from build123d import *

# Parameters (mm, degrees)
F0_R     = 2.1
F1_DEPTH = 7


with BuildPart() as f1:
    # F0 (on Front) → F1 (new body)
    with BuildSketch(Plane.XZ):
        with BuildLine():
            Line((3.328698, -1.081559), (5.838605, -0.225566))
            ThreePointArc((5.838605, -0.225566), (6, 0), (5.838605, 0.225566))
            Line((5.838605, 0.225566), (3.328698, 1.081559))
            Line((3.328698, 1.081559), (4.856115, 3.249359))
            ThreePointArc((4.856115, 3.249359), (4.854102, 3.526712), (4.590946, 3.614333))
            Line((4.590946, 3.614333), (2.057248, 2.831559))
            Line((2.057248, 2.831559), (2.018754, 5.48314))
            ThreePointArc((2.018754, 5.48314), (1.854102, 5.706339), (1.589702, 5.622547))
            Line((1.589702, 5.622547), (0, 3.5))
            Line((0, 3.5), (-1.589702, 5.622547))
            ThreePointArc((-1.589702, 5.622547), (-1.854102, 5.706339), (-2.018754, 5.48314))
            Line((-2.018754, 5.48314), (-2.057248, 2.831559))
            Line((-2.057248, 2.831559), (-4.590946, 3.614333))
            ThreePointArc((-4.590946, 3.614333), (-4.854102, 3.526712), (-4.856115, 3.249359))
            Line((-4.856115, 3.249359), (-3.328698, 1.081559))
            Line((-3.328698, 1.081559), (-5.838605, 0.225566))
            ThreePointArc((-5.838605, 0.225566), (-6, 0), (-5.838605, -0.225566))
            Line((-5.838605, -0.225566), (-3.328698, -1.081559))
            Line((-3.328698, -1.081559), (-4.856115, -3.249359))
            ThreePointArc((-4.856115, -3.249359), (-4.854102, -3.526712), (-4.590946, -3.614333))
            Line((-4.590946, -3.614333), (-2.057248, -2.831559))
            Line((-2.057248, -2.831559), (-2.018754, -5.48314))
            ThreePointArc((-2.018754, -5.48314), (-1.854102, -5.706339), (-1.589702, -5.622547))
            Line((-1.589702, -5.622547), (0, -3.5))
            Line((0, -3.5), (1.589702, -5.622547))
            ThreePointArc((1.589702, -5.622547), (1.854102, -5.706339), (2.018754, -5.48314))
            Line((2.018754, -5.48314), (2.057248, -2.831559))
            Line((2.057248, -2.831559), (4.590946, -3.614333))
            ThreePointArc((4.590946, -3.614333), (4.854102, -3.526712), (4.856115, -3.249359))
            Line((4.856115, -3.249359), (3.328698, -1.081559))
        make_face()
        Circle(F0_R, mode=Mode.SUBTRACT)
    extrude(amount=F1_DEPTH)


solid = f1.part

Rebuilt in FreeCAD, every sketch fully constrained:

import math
import FreeCAD as App
import Part
import Sketcher
from FreeCAD import Vector

doc = App.newDocument("Part")
body = doc.addObject("PartDesign::Body", "Body")

# Sketch on XZ plane
sketch1 = doc.addObject("Sketcher::SketchObject", "Sketch")
body.addObject(sketch1)
sketch1.AttachmentSupport = (doc.XZ_Plane, [""])
sketch1.MapMode = "FlatFace"
sketch1.addGeometry(Part.LineSegment(Vector(3.33, -1.08, 0), Vector(5.84, -0.23, 0)), False)
sketch1.addGeometry(Part.ArcOfCircle(Part.Circle(Vector(5.76, 0, 0), Vector(0, 0, 1), 0.24), math.radians(-71), math.radians(71)), False)
sketch1.addGeometry(Part.LineSegment(Vector(5.84, 0.23, 0), Vector(3.33, 1.08, 0)), False)
sketch1.addGeometry(Part.LineSegment(Vector(3.33, 1.08, 0), Vector(4.86, 3.25, 0)), False)
sketch1.addGeometry(Part.ArcOfCircle(Part.Circle(Vector(4.66, 3.39, 0), Vector(0, 0, 1), 0.24), math.radians(-35), math.radians(107)), False)
sketch1.addGeometry(Part.LineSegment(Vector(4.59, 3.61, 0), Vector(2.06, 2.83, 0)), False)
sketch1.addGeometry(Part.LineSegment(Vector(2.06, 2.83, 0), Vector(2.02, 5.48, 0)), False)
sketch1.addGeometry(Part.ArcOfCircle(Part.Circle(Vector(1.78, 5.48, 0), Vector(0, 0, 1), 0.24), math.radians(1), math.radians(143)), False)
sketch1.addGeometry(Part.LineSegment(Vector(1.59, 5.62, 0), Vector(0, 3.5, 0)), False)
sketch1.addGeometry(Part.LineSegment(Vector(0, 3.5, 0), Vector(-1.59, 5.62, 0)), False)
sketch1.addGeometry(Part.ArcOfCircle(Part.Circle(Vector(-1.78, 5.48, 0), Vector(0, 0, 1), 0.24), math.radians(37), math.radians(179)), False)
sketch1.addGeometry(Part.LineSegment(Vector(-2.02, 5.48, 0), Vector(-2.06, 2.83, 0)), False)
sketch1.addGeometry(Part.LineSegment(Vector(-2.06, 2.83, 0), Vector(-4.59, 3.61, 0)), False)
sketch1.addGeometry(Part.ArcOfCircle(Part.Circle(Vector(-4.66, 3.39, 0), Vector(0, 0, 1), 0.24), math.radians(73), math.radians(215)), False)
sketch1.addGeometry(Part.LineSegment(Vector(-4.86, 3.25, 0), Vector(-3.33, 1.08, 0)), False)
sketch1.addGeometry(Part.LineSegment(Vector(-3.33, 1.08, 0), Vector(-5.84, 0.23, 0)), False)
sketch1.addGeometry(Part.ArcOfCircle(Part.Circle(Vector(-5.76, 0, 0), Vector(0, 0, 1), 0.24), math.radians(109), math.radians(251)), False)
sketch1.addGeometry(Part.LineSegment(Vector(-5.84, -0.23, 0), Vector(-3.33, -1.08, 0)), False)
sketch1.addGeometry(Part.LineSegment(Vector(-3.33, -1.08, 0), Vector(-4.86, -3.25, 0)), False)
sketch1.addGeometry(Part.ArcOfCircle(Part.Circle(Vector(-4.66, -3.39, 0), Vector(0, 0, 1), 0.24), math.radians(145), math.radians(287)), False)
sketch1.addGeometry(Part.LineSegment(Vector(-4.59, -3.61, 0), Vector(-2.06, -2.83, 0)), False)
sketch1.addGeometry(Part.LineSegment(Vector(-2.06, -2.83, 0), Vector(-2.02, -5.48, 0)), False)
sketch1.addGeometry(Part.ArcOfCircle(Part.Circle(Vector(-1.78, -5.48, 0), Vector(0, 0, 1), 0.24), math.radians(-179), math.radians(-37)), False)
sketch1.addGeometry(Part.LineSegment(Vector(-1.59, -5.62, 0), Vector(0, -3.5, 0)), False)
sketch1.addGeometry(Part.LineSegment(Vector(0, -3.5, 0), Vector(1.59, -5.62, 0)), False)
sketch1.addGeometry(Part.ArcOfCircle(Part.Circle(Vector(1.78, -5.48, 0), Vector(0, 0, 1), 0.24), math.radians(-143), math.radians(-1)), False)
sketch1.addGeometry(Part.LineSegment(Vector(2.02, -5.48, 0), Vector(2.06, -2.83, 0)), False)
sketch1.addGeometry(Part.LineSegment(Vector(2.06, -2.83, 0), Vector(4.59, -3.61, 0)), False)
sketch1.addGeometry(Part.ArcOfCircle(Part.Circle(Vector(4.66, -3.39, 0), Vector(0, 0, 1), 0.24), math.radians(-107), math.radians(35)), False)
sketch1.addGeometry(Part.LineSegment(Vector(4.86, -3.25, 0), Vector(3.33, -1.08, 0)), False)
sketch1.addGeometry(Part.Circle(Vector(0, 0, 0), Vector(0, 0, 1), 2.1), False)
sketch1.addConstraint(Sketcher.Constraint("Tangent", 0, 2, 1, 1))
sketch1.addConstraint(Sketcher.Constraint("Tangent", 1, 2, 2, 1))
sketch1.addConstraint(Sketcher.Constraint("Coincident", 2, 2, 3, 1))
sketch1.addConstraint(Sketcher.Constraint("Tangent", 3, 2, 4, 1))
sketch1.addConstraint(Sketcher.Constraint("Tangent", 4, 2, 5, 1))
sketch1.addConstraint(Sketcher.Constraint("Coincident", 5, 2, 6, 1))
sketch1.addConstraint(Sketcher.Constraint("Tangent", 6, 2, 7, 1))
sketch1.addConstraint(Sketcher.Constraint("Tangent", 7, 2, 8, 1))
sketch1.addConstraint(Sketcher.Constraint("Coincident", 8, 2, 9, 1))
sketch1.addConstraint(Sketcher.Constraint("Tangent", 9, 2, 10, 1))
sketch1.addConstraint(Sketcher.Constraint("Tangent", 10, 2, 11, 1))
sketch1.addConstraint(Sketcher.Constraint("Coincident", 11, 2, 12, 1))
sketch1.addConstraint(Sketcher.Constraint("Tangent", 12, 2, 13, 1))
sketch1.addConstraint(Sketcher.Constraint("Tangent", 13, 2, 14, 1))
sketch1.addConstraint(Sketcher.Constraint("Coincident", 14, 2, 15, 1))
sketch1.addConstraint(Sketcher.Constraint("Tangent", 15, 2, 16, 1))
sketch1.addConstraint(Sketcher.Constraint("Tangent", 16, 2, 17, 1))
sketch1.addConstraint(Sketcher.Constraint("Coincident", 17, 2, 18, 1))
sketch1.addConstraint(Sketcher.Constraint("Tangent", 18, 2, 19, 1))
sketch1.addConstraint(Sketcher.Constraint("Tangent", 19, 2, 20, 1))
sketch1.addConstraint(Sketcher.Constraint("Coincident", 20, 2, 21, 1))
sketch1.addConstraint(Sketcher.Constraint("Tangent", 21, 2, 22, 1))
sketch1.addConstraint(Sketcher.Constraint("Tangent", 22, 2, 23, 1))
sketch1.addConstraint(Sketcher.Constraint("Coincident", 23, 2, 24, 1))
sketch1.addConstraint(Sketcher.Constraint("Tangent", 24, 2, 25, 1))
sketch1.addConstraint(Sketcher.Constraint("Tangent", 25, 2, 26, 1))
sketch1.addConstraint(Sketcher.Constraint("Coincident", 26, 2, 27, 1))
sketch1.addConstraint(Sketcher.Constraint("Tangent", 27, 2, 28, 1))
sketch1.addConstraint(Sketcher.Constraint("Tangent", 28, 2, 29, 1))
sketch1.addConstraint(Sketcher.Constraint("Coincident", 29, 2, 0, 1))
sketch1.addConstraint(Sketcher.Constraint("Coincident", 30, 3, -1, 1))
sketch1.addConstraint(Sketcher.Constraint("Equal", 1, 4))
sketch1.addConstraint(Sketcher.Constraint("Equal", 4, 7))
sketch1.addConstraint(Sketcher.Constraint("Equal", 7, 10))
sketch1.addConstraint(Sketcher.Constraint("Equal", 10, 13))
sketch1.addConstraint(Sketcher.Constraint("Equal", 13, 16))
sketch1.addConstraint(Sketcher.Constraint("Equal", 16, 19))
sketch1.addConstraint(Sketcher.Constraint("Equal", 19, 22))
sketch1.addConstraint(Sketcher.Constraint("Equal", 22, 25))
sketch1.addConstraint(Sketcher.Constraint("Equal", 25, 28))
sketch1.addConstraint(Sketcher.Constraint("Symmetric", 1, 3, 16, 3, -1, 1))
sketch1.addConstraint(Sketcher.Constraint("Symmetric", 4, 3, 19, 3, -1, 1))
sketch1.addConstraint(Sketcher.Constraint("Symmetric", 7, 3, 22, 3, -1, 1))
sketch1.addConstraint(Sketcher.Constraint("Symmetric", 10, 3, 25, 3, -1, 1))
sketch1.addConstraint(Sketcher.Constraint("Symmetric", 13, 3, 28, 3, -1, 1))
sketch1.addConstraint(Sketcher.Constraint("Symmetric", 2, 2, 17, 2, -1, 1))
sketch1.addConstraint(Sketcher.Constraint("Symmetric", 5, 2, 20, 2, -1, 1))
sketch1.addConstraint(Sketcher.Constraint("Symmetric", 8, 2, 23, 2, -1, 1))
sketch1.addConstraint(Sketcher.Constraint("Symmetric", 11, 2, 26, 2, -1, 1))
sketch1.addConstraint(Sketcher.Constraint("Symmetric", 14, 2, 29, 2, -1, 1))
sketch1.addConstraint(Sketcher.Constraint("Symmetric", 7, 3, 10, 3, -2))
sketch1.addConstraint(Sketcher.Constraint("Symmetric", 4, 3, 13, 3, -2))
sketch1.addConstraint(Sketcher.Constraint("Symmetric", 5, 2, 11, 2, -2))
sketch1.addConstraint(Sketcher.Constraint("Symmetric", 2, 2, 14, 2, -2))
sketch1.addConstraint(Sketcher.Constraint("PointOnObject", 1, 3, -1))
sketch1.addConstraint(Sketcher.Constraint("PointOnObject", 8, 2, -2))
sketch1.addConstraint(Sketcher.Constraint("Equal", 2, 3))
sketch1.addConstraint(Sketcher.Constraint("Equal", 3, 5))
sketch1.addConstraint(Sketcher.Constraint("Equal", 5, 6))
sketch1.addConstraint(Sketcher.Constraint("Equal", 6, 8))
sketch1.addConstraint(Sketcher.Constraint("Diameter", 30, 4.2))
sketch1.addConstraint(Sketcher.Constraint("DistanceY", -1, 1, 8, 2, 3.5))
sketch1.addConstraint(Sketcher.Constraint("DistanceY", 2, 2, 5, 2, 1.75))
sketch1.addConstraint(Sketcher.Constraint("Radius", 1, 0.238323))
sketch1.addConstraint(Sketcher.Constraint("DistanceX", -1, 1, 2, 2, 3.328698))
sketch1.addConstraint(Sketcher.Constraint("DistanceY", 2, 2, 3, 2, 2.1678))
sketch1.addConstraint(Sketcher.Constraint("Distance", 0, 2.651859))
sketch1.addConstraint(Sketcher.Constraint("DistanceY", -1, 1, 4, 3, 3.386629))
pad1 = doc.addObject("PartDesign::Pad", "Pad")
body.addObject(pad1)
pad1.Profile = sketch1
pad1.Length = 7

doc.recompute()
